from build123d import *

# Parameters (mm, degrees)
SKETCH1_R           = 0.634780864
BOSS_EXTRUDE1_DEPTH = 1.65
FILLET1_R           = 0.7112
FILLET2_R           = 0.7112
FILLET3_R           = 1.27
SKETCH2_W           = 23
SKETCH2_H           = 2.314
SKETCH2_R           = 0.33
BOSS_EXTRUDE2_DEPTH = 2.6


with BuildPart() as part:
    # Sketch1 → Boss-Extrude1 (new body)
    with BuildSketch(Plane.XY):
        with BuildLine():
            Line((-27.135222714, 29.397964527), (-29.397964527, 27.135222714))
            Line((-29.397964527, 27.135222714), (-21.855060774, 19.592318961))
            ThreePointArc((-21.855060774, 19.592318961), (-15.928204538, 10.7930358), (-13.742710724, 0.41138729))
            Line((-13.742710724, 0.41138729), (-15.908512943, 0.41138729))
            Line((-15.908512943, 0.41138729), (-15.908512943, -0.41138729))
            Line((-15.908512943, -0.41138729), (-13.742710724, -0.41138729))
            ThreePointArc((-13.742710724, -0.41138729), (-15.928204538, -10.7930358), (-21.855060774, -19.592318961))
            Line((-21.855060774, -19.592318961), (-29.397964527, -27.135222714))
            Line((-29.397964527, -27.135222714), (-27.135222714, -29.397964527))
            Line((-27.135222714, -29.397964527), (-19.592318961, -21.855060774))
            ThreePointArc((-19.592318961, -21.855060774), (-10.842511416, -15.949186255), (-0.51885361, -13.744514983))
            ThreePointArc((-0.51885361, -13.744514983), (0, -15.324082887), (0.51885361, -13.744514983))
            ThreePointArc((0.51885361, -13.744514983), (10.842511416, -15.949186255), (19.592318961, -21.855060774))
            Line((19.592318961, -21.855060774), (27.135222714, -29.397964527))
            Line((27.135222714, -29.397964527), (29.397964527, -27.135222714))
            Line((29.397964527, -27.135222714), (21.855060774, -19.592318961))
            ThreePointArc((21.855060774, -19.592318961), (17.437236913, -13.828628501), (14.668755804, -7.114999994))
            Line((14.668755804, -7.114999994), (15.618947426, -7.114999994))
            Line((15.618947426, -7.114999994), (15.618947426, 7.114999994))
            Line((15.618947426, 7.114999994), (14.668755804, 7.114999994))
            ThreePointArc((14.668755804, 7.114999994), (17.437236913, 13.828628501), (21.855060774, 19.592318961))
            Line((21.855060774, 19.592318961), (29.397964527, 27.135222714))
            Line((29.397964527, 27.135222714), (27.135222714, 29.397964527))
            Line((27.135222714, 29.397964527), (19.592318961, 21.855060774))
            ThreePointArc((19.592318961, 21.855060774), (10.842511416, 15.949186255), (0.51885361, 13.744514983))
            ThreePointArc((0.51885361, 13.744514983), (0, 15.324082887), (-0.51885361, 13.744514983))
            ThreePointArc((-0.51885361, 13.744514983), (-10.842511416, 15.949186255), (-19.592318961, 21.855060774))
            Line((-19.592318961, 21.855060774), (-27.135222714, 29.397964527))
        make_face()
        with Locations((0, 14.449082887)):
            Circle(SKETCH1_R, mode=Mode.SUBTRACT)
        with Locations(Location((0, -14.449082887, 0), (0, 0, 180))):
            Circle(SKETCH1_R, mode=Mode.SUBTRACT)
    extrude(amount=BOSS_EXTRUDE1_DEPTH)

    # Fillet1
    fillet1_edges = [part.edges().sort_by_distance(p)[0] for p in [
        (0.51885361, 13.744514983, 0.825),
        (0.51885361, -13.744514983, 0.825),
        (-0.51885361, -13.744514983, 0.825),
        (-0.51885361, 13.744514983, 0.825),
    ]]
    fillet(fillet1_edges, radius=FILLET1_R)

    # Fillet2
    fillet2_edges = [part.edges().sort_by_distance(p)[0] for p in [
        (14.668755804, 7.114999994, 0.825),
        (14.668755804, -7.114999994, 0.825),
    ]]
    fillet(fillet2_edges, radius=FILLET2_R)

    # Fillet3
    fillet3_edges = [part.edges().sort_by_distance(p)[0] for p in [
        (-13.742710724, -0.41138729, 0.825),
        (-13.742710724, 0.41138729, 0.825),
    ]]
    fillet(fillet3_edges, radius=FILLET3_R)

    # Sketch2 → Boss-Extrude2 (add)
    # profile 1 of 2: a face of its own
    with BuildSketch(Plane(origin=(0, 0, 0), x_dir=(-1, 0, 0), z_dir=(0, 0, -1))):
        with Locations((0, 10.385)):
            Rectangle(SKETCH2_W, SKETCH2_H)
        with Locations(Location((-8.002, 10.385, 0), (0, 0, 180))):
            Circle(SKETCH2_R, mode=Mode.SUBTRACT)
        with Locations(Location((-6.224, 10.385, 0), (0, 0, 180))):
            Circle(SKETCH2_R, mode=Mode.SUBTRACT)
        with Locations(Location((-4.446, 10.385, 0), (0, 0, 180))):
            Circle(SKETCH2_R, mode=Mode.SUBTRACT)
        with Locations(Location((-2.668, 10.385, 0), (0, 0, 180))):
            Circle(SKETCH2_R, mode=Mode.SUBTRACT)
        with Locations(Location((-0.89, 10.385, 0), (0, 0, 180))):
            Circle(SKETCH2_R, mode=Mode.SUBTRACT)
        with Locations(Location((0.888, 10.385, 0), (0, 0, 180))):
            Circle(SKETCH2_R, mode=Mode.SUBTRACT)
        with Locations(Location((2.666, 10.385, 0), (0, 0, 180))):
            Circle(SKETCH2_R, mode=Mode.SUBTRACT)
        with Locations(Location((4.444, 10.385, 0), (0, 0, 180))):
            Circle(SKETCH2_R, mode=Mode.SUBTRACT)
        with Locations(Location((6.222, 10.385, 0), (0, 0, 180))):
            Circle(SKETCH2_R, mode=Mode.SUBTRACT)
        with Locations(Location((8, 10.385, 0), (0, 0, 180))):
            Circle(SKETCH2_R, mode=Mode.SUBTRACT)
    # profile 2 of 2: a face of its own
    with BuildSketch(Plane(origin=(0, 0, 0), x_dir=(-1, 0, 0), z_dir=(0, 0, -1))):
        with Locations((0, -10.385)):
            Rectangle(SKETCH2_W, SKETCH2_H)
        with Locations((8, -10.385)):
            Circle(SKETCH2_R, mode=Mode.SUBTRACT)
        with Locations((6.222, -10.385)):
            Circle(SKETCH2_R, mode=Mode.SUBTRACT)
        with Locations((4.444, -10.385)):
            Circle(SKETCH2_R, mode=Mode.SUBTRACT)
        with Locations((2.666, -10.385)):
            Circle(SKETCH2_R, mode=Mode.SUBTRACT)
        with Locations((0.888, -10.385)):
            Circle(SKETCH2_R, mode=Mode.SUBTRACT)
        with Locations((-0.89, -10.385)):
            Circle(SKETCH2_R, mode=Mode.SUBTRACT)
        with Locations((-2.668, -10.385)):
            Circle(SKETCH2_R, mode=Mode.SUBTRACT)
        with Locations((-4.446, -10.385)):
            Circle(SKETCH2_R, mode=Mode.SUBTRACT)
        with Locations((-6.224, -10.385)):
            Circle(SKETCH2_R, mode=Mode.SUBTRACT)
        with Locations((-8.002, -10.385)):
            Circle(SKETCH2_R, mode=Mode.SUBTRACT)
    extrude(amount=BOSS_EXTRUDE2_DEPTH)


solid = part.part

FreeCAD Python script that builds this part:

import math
import FreeCAD as App
import Part
import Sketcher

V = App.Vector


def edges_at(feature, points):
    """Names of the edges that pass closest to the given points."""
    edges = feature.Shape.Edges
    near = lambda p: min(range(len(edges)), key=lambda i: edges[i].distToShape(Part.Vertex(*p))[0])
    return sorted({f"Edge{near(p) + 1}" for p in points})

doc = App.newDocument("Part")
params = doc.addObject("Spreadsheet::Sheet", "Params")
for row, (alias, value) in enumerate([
    ("sketch1_length", "3.2 mm"),
    ("sketch1_height", "14.23 mm"),
    ("pad1_length", "1.65 mm"),
    ("fillet_radius", "0.7112 mm"),
    ("fillet2_radius", "0.7112 mm"),
    ("fillet3_radius", "1.27 mm"),
    ("sketch2_diameter", "0.66 mm"),
    ("sketch2_width", "23 mm"),
    ("pad2_length", "2.6 mm"),
], start=1):
    params.set(f"A{row}", alias)
    params.set(f"B{row}", "=" + value)
    params.setAlias(f"B{row}", alias)

body = doc.addObject("PartDesign::Body", "Body")

sketch1 = body.newObject("Sketcher::SketchObject", "Sketch")
sketch1.AttachmentSupport = (doc.getObject("XY_Plane"), [""])
sketch1.MapMode = "FlatFace"
sketch1.addGeometry(Part.LineSegment(V(-27.1, 29.4, 0), V(-29.4, 27.1, 0)), False)
sketch1.addGeometry(Part.LineSegment(V(-29.4, 27.1, 0), V(-21.9, 19.6, 0)), False)
sketch1.addGeometry(Part.ArcOfCircle(Part.Circle(V(-41.4, 0, 0), V(0, 0, 1), 27.7), math.radians(1), math.radians(45)), False)
sketch1.addGeometry(Part.LineSegment(V(-13.7, 0.4, 0), V(-15.9, 0.4, 0)), False)
sketch1.addGeometry(Part.LineSegment(V(-15.9, 0.4, 0), V(-15.9, -0.4, 0)), False)
sketch1.addGeometry(Part.LineSegment(V(-15.9, -0.4, 0), V(-13.7, -0.4, 0)), False)
sketch1.addGeometry(Part.ArcOfCircle(Part.Circle(V(-41.4, 0, 0), V(0, 0, 1), 27.7), math.radians(-45), math.radians(-1)), False)
sketch1.addGeometry(Part.LineSegment(V(-21.9, -19.6, 0), V(-29.4, -27.1, 0)), False)
sketch1.addGeometry(Part.LineSegment(V(-29.4, -27.1, 0), V(-27.1, -29.4, 0)), False)
sketch1.addGeometry(Part.LineSegment(V(-27.1, -29.4, 0), V(-19.6, -21.9, 0)), False)
sketch1.addGeometry(Part.ArcOfCircle(Part.Circle(V(0, -41.4, 0), V(0, 0, 1), 27.7), math.radians(91), math.radians(135)), False)
sketch1.addGeometry(Part.ArcOfCircle(Part.Circle(V(0, -14.4, 0), V(0, 0, 1), 0.9), math.radians(126), math.radians(414)), False)
sketch1.addGeometry(Part.ArcOfCircle(Part.Circle(V(0, -41.4, 0), V(0, 0, 1), 27.7), math.radians(45), math.radians(89)), False)
sketch1.addGeometry(Part.LineSegment(V(19.6, -21.9, 0), V(27.1, -29.4, 0)), False)
sketch1.addGeometry(Part.LineSegment(V(27.1, -29.4, 0), V(29.4, -27.1, 0)), False)
sketch1.addGeometry(Part.LineSegment(V(29.4, -27.1, 0), V(21.9, -19.6, 0)), False)
sketch1.addGeometry(Part.ArcOfCircle(Part.Circle(V(41.4, 0, 0), V(0, 0, 1), 27.7), math.radians(-165), math.radians(-135)), False)
sketch1.addGeometry(Part.LineSegment(V(14.7, -7.1, 0), V(15.6, -7.1, 0)), False)
sketch1.addGeometry(Part.LineSegment(V(15.6, -7.1, 0), V(15.6, 7.1, 0)), False)
sketch1.addGeometry(Part.LineSegment(V(15.6, 7.1, 0), V(14.7, 7.1, 0)), False)
sketch1.addGeometry(Part.ArcOfCircle(Part.Circle(V(41.4, 0, 0), V(0, 0, 1), 27.7), math.radians(135), math.radians(165)), False)
sketch1.addGeometry(Part.LineSegment(V(21.9, 19.6, 0), V(29.4, 27.1, 0)), False)
sketch1.addGeometry(Part.LineSegment(V(29.4, 27.1, 0), V(27.1, 29.4, 0)), False)
sketch1.addGeometry(Part.LineSegment(V(27.1, 29.4, 0), V(19.6, 21.9, 0)), False)
sketch1.addGeometry(Part.ArcOfCircle(Part.Circle(V(0, 41.4, 0), V(0, 0, 1), 27.7), math.radians(-89), math.radians(-45)), False)
sketch1.addGeometry(Part.ArcOfCircle(Part.Circle(V(0, 14.4, 0), V(0, 0, 1), 0.9), math.radians(-54), math.radians(234)), False)
sketch1.addGeometry(Part.ArcOfCircle(Part.Circle(V(0, 41.4, 0), V(0, 0, 1), 27.7), math.radians(-135), math.radians(-91)), False)
sketch1.addGeometry(Part.LineSegment(V(-19.6, 21.9, 0), V(-27.1, 29.4, 0)), False)
sketch1.addGeometry(Part.Circle(V(0, -14.4, 0), V(0, 0, 1), 0.6), False)
sketch1.addGeometry(Part.Circle(V(0, 14.4, 0), V(0, 0, 1), 0.6), False)
sketch1.addConstraint(Sketcher.Constraint("Coincident", 0, 2, 1, 1))
sketch1.addConstraint(Sketcher.Constraint("Tangent", 1, 2, 2, 2))
sketch1.addConstraint(Sketcher.Constraint("Coincident", 2, 1, 3, 1))
sketch1.addConstraint(Sketcher.Constraint("Coincident", 3, 2, 4, 1))
sketch1.addConstraint(Sketcher.Constraint("Coincident", 4, 2, 5, 1))
sketch1.addConstraint(Sketcher.Constraint("Coincident", 5, 2, 6, 2))
sketch1.addConstraint(Sketcher.Constraint("Tangent", 6, 1, 7, 1))
sketch1.addConstraint(Sketcher.Constraint("Coincident", 7, 2, 8, 1))
sketch1.addConstraint(Sketcher.Constraint("Coincident", 8, 2, 9, 1))
sketch1.addConstraint(Sketcher.Constraint("Tangent", 9, 2, 10, 2))
sketch1.addConstraint(Sketcher.Constraint("Coincident", 10, 1, 11, 1))
sketch1.addConstraint(Sketcher.Constraint("Coincident", 11, 2, 12, 2))
sketch1.addConstraint(Sketcher.Constraint("Tangent", 12, 1, 13, 1))
sketch1.addConstraint(Sketcher.Constraint("Coincident", 13, 2, 14, 1))
sketch1.addConstraint(Sketcher.Constraint("Coincident", 14, 2, 15, 1))
sketch1.addConstraint(Sketcher.Constraint("Tangent", 15, 2, 16, 2))
sketch1.addConstraint(Sketcher.Constraint("Coincident", 16, 1, 17, 1))
sketch1.addConstraint(Sketcher.Constraint("Coincident", 17, 2, 18, 1))
sketch1.addConstraint(Sketcher.Constraint("Coincident", 18, 2, 19, 1))
sketch1.addConstraint(Sketcher.Constraint("Coincident", 19, 2, 20, 2))
sketch1.addConstraint(Sketcher.Constraint("Tangent", 20, 1, 21, 1))
sketch1.addConstraint(Sketcher.Constraint("Coincident", 21, 2, 22, 1))
sketch1.addConstraint(Sketcher.Constraint("Coincident", 22, 2, 23, 1))
sketch1.addConstraint(Sketcher.Constraint("Tangent", 23, 2, 24, 2))
sketch1.addConstraint(Sketcher.Constraint("Coincident", 24, 1, 25, 1))
sketch1.addConstraint(Sketcher.Constraint("Coincident", 25, 2, 26, 2))
sketch1.addConstraint(Sketcher.Constraint("Tangent", 26, 1, 27, 1))
sketch1.addConstraint(Sketcher.Constraint("Coincident", 27, 2, 0, 1))
sketch1.addConstraint(Sketcher.Constraint("Horizontal", 3))
sketch1.addConstraint(Sketcher.Constraint("Vertical", 4))
sketch1.addConstraint(Sketcher.Constraint("Horizontal", 5))
sketch1.addConstraint(Sketcher.Constraint("Horizontal", 17))
sketch1.addConstraint(Sketcher.Constraint("Vertical", 18))
sketch1.addConstraint(Sketcher.Constraint("Horizontal", 19))
sketch1.addConstraint(Sketcher.Constraint("Coincident", 6, 3, 2, 3))
sketch1.addConstraint(Sketcher.Constraint("Coincident", 12, 3, 10, 3))
sketch1.addConstraint(Sketcher.Constraint("Coincident", 20, 3, 16, 3))
sketch1.addConstraint(Sketcher.Constraint("Coincident", 26, 3, 24, 3))
sketch1.addConstraint(Sketcher.Constraint("Coincident", 28, 3, 11, 3))
sketch1.addConstraint(Sketcher.Constraint("Coincident", 29, 3, 25, 3))
sketch1.addConstraint(Sketcher.Constraint("Equal", 2, 6))
sketch1.addConstraint(Sketcher.Constraint("Equal", 6, 10))
sketch1.addConstraint(Sketcher.Constraint("Equal", 10, 12))
sketch1.addConstraint(Sketcher.Constraint("Equal", 12, 16))
sketch1.addConstraint(Sketcher.Constraint("Equal", 16, 20))
sketch1.addConstraint(Sketcher.Constraint("Equal", 20, 24))
sketch1.addConstraint(Sketcher.Constraint("Equal", 11, 25))
sketch1.addConstraint(Sketcher.Constraint("Equal", 24, 26))
sketch1.addConstraint(Sketcher.Constraint("Equal", 28, 29))
sketch1.addConstraint(Sketcher.Constraint("Symmetric", 2, 3, 16, 3, -1, 1))
sketch1.addConstraint(Sketcher.Constraint("Symmetric", 10, 3, 24, 3, -1, 1))
sketch1.addConstraint(Sketcher.Constraint("Symmetric", 11, 3, 25, 3, -1, 1))
sketch1.addConstraint(Sketcher.Constraint("Symmetric", 0, 2, 14, 2, -1, 1))
sketch1.addConstraint(Sketcher.Constraint("Symmetric", 7, 2, 21, 2, -1, 1))
sketch1.addConstraint(Sketcher.Constraint("Symmetric", 8, 2, 22, 2, -1, 1))
sketch1.addConstraint(Sketcher.Constraint("Symmetric", 13, 2, 27, 2, -1, 1))
sketch1.addConstraint(Sketcher.Constraint("Symmetric", 10, 1, 11, 2, -2))
sketch1.addConstraint(Sketcher.Constraint("Symmetric", 8, 2, 13, 2, -2))
sketch1.addConstraint(Sketcher.Constraint("Symmetric", 7, 2, 14, 2, -2))
sketch1.addConstraint(Sketcher.Constraint("Symmetric", 2, 1, 5, 2, -1))
sketch1.addConstraint(Sketcher.Constraint("Perpendicular", 0, 1))
sketch1.addConstraint(Sketcher.Constraint("Perpendicular", 1, 7))
sketch1.addConstraint(Sketcher.Constraint("Perpendicular", 8, 9))
sketch1.addConstraint(Sketcher.Constraint("Vertical", 16, 1, 19, 2))
sketch1.addConstraint(Sketcher.Constraint("Equal", 7, 9))
sketch1.addConstraint(Sketcher.Constraint("Radius", 11, 0.875))
sketch1.addConstraint(Sketcher.Constraint("Distance", 0, 3.2))
sketch1.addConstraint(Sketcher.Constraint("DistanceY", 18, 1, 18, 2, 14.23))
sketch1.addConstraint(Sketcher.Constraint("Diameter", 28, 1.269562))
sketch1.addConstraint(Sketcher.Constraint("Radius", 2, 27.707723))
sketch1.addConstraint(Sketcher.Constraint("DistanceX", 17, 1, 17, 2, 0.950192))
sketch1.addConstraint(Sketcher.Constraint("DistanceX", 25, 2, 18, 2, 16.137801))
sketch1.addConstraint(Sketcher.Constraint("DistanceX", 3, 2, 3, 1, 2.165802))
sketch1.addConstraint(Sketcher.Constraint("DistanceY", 4, 2, 4, 1, 0.822775))
sketch1.addConstraint(Sketcher.Constraint("DistanceY", 25, 3, 0, 2, 12.68614))
sketch1.setExpression("Constraints[66]", "Params.sketch1_length")
sketch1.setExpression("Constraints[67]", "Params.sketch1_height")
pad1 = body.newObject("PartDesign::Pad", "Pad")
pad1.Profile = sketch1
pad1.setExpression("Length", "Params.pad1_length")
doc.recompute()

fillet = body.newObject("PartDesign::Fillet", "Fillet")
fillet.Base = (pad1, edges_at(pad1, [
    (0.519, 13.745, 0.825),
    (0.519, -13.745, 0.825),
    (-0.519, -13.745, 0.825),
    (-0.519, 13.745, 0.825),
]))
fillet.setExpression("Radius", "Params.fillet_radius")
doc.recompute()

fillet2 = body.newObject("PartDesign::Fillet", "Fillet001")
fillet2.Base = (fillet, edges_at(fillet, [(14.669, 7.115, 0.825), (14.669, -7.115, 0.825)]))
fillet2.setExpression("Radius", "Params.fillet2_radius")
doc.recompute()

fillet3 = body.newObject("PartDesign::Fillet", "Fillet002")
fillet3.Base = (fillet2, edges_at(fillet2, [(-13.743, -0.411, 0.825), (-13.743, 0.411, 0.825)]))
fillet3.setExpression("Radius", "Params.fillet3_radius")

sketch2 = body.newObject("Sketcher::SketchObject", "Sketch001")
sketch2.AttachmentSupport = (doc.getObject("XY_Plane"), [""])
sketch2.MapMode = "FlatFace"
sketch2.addGeometry(Part.LineSegment(V(11.5, 11.54, 0), V(11.5, 9.23, 0)), False)
sketch2.addGeometry(Part.LineSegment(V(11.5, 9.23, 0), V(-11.5, 9.23, 0)), False)
sketch2.addGeometry(Part.LineSegment(V(-11.5, 9.23, 0), V(-11.5, 11.54, 0)), False)
sketch2.addGeometry(Part.LineSegment(V(-11.5, 11.54, 0), V(11.5, 11.54, 0)), False)
sketch2.addGeometry(Part.Circle(V(8, 10.38, 0), V(0, 0, 1), 0.33), False)
sketch2.addGeometry(Part.Circle(V(6.22, 10.38, 0), V(0, 0, 1), 0.33), False)
sketch2.addGeometry(Part.Circle(V(4.45, 10.38, 0), V(0, 0, 1), 0.33), False)
sketch2.addGeometry(Part.Circle(V(2.67, 10.38, 0), V(0, 0, 1), 0.33), False)
sketch2.addGeometry(Part.Circle(V(0.89, 10.38, 0), V(0, 0, 1), 0.33), False)
sketch2.addGeometry(Part.Circle(V(-0.89, 10.38, 0), V(0, 0, 1), 0.33), False)
sketch2.addGeometry(Part.Circle(V(-2.67, 10.38, 0), V(0, 0, 1), 0.33), False)
sketch2.addGeometry(Part.Circle(V(-4.44, 10.38, 0), V(0, 0, 1), 0.33), False)
sketch2.addGeometry(Part.Circle(V(-6.22, 10.38, 0), V(0, 0, 1), 0.33), False)
sketch2.addGeometry(Part.Circle(V(-8, 10.38, 0), V(0, 0, 1), 0.33), False)
sketch2.addGeometry(Part.LineSegment(V(11.5, -9.23, 0), V(11.5, -11.54, 0)), False)
sketch2.addGeometry(Part.LineSegment(V(11.5, -11.54, 0), V(-11.5, -11.54, 0)), False)
sketch2.addGeometry(Part.LineSegment(V(-11.5, -11.54, 0), V(-11.5, -9.23, 0)), False)
sketch2.addGeometry(Part.LineSegment(V(-11.5, -9.23, 0), V(11.5, -9.23, 0)), False)
sketch2.addGeometry(Part.Circle(V(8, -10.38, 0), V(0, 0, 1), 0.33), False)
sketch2.addGeometry(Part.Circle(V(6.22, -10.38, 0), V(0, 0, 1), 0.33), False)
sketch2.addGeometry(Part.Circle(V(4.45, -10.38, 0), V(0, 0, 1), 0.33), False)
sketch2.addGeometry(Part.Circle(V(2.67, -10.38, 0), V(0, 0, 1), 0.33), False)
sketch2.addGeometry(Part.Circle(V(0.89, -10.38, 0), V(0, 0, 1), 0.33), False)
sketch2.addGeometry(Part.Circle(V(-0.89, -10.38, 0), V(0, 0, 1), 0.33), False)
sketch2.addGeometry(Part.Circle(V(-2.67, -10.38, 0), V(0, 0, 1), 0.33), False)
sketch2.addGeometry(Part.Circle(V(-4.44, -10.38, 0), V(0, 0, 1), 0.33), False)
sketch2.addGeometry(Part.Circle(V(-6.22, -10.38, 0), V(0, 0, 1), 0.33), False)
sketch2.addGeometry(Part.Circle(V(-8, -10.38, 0), V(0, 0, 1), 0.33), False)
sketch2.addConstraint(Sketcher.Constraint("Coincident", 0, 2, 1, 1))
sketch2.addConstraint(Sketcher.Constraint("Coincident", 1, 2, 2, 1))
sketch2.addConstraint(Sketcher.Constraint("Coincident", 2, 2, 3, 1))
sketch2.addConstraint(Sketcher.Constraint("Coincident", 3, 2, 0, 1))
sketch2.addConstraint(Sketcher.Constraint("Coincident", 14, 2, 15, 1))
sketch2.addConstraint(Sketcher.Constraint("Coincident", 15, 2, 16, 1))
sketch2.addConstraint(Sketcher.Constraint("Coincident", 16, 2, 17, 1))
sketch2.addConstraint(Sketcher.Constraint("Coincident", 17, 2, 14, 1))
sketch2.addConstraint(Sketcher.Constraint("Vertical", 0))
sketch2.addConstraint(Sketcher.Constraint("Horizontal", 1))
sketch2.addConstraint(Sketcher.Constraint("Vertical", 2))
sketch2.addConstraint(Sketcher.Constraint("Horizontal", 3))
sketch2.addConstraint(Sketcher.Constraint("Vertical", 14))
sketch2.addConstraint(Sketcher.Constraint("Horizontal", 15))
sketch2.addConstraint(Sketcher.Constraint("Vertical", 16))
sketch2.addConstraint(Sketcher.Constraint("Horizontal", 17))
sketch2.addConstraint(Sketcher.Constraint("Equal", 4, 5))
sketch2.addConstraint(Sketcher.Constraint("Equal", 5, 6))
sketch2.addConstraint(Sketcher.Constraint("Equal", 6, 7))
sketch2.addConstraint(Sketcher.Constraint("Equal", 7, 8))
sketch2.addConstraint(Sketcher.Constraint("Equal", 8, 9))
sketch2.addConstraint(Sketcher.Constraint("Equal", 9, 10))
sketch2.addConstraint(Sketcher.Constraint("Equal", 10, 11))
sketch2.addConstraint(Sketcher.Constraint("Equal", 11, 12))
sketch2.addConstraint(Sketcher.Constraint("Equal", 12, 13))
sketch2.addConstraint(Sketcher.Constraint("Equal", 13, 18))
sketch2.addConstraint(Sketcher.Constraint("Equal", 18, 19))
sketch2.addConstraint(Sketcher.Constraint("Equal", 19, 20))
sketch2.addConstraint(Sketcher.Constraint("Equal", 20, 21))
sketch2.addConstraint(Sketcher.Constraint("Equal", 21, 22))
sketch2.addConstraint(Sketcher.Constraint("Equal", 22, 23))
sketch2.addConstraint(Sketcher.Constraint("Equal", 23, 24))
sketch2.addConstraint(Sketcher.Constraint("Equal", 24, 25))
sketch2.addConstraint(Sketcher.Constraint("Equal", 25, 26))
sketch2.addConstraint(Sketcher.Constraint("Equal", 26, 27))
sketch2.addConstraint(Sketcher.Constraint("Symmetric", 2, 2, 14, 2, -1, 1))
sketch2.addConstraint(Sketcher.Constraint("Symmetric", 0, 2, 16, 2, -1, 1))
sketch2.addConstraint(Sketcher.Constraint("Symmetric", 4, 3, 18, 3, -1))
sketch2.addConstraint(Sketcher.Constraint("Symmetric", 5, 3, 19, 3, -1))
sketch2.addConstraint(Sketcher.Constraint("Symmetric", 6, 3, 20, 3, -1))
sketch2.addConstraint(Sketcher.Constraint("Symmetric", 7, 3, 21, 3, -1))
sketch2.addConstraint(Sketcher.Constraint("Symmetric", 8, 3, 22, 3, -1))
sketch2.addConstraint(Sketcher.Constraint("Symmetric", 9, 3, 23, 3, -1))
sketch2.addConstraint(Sketcher.Constraint("Symmetric", 10, 3, 24, 3, -1))
sketch2.addConstraint(Sketcher.Constraint("Symmetric", 11, 3, 25, 3, -1))
sketch2.addConstraint(Sketcher.Constraint("Symmetric", 12, 3, 26, 3, -1))
sketch2.addConstraint(Sketcher.Constraint("Symmetric", 13, 3, 27, 3, -1))
sketch2.addConstraint(Sketcher.Constraint("Horizontal", 4, 3, 5, 3))
sketch2.addConstraint(Sketcher.Constraint("Horizontal", 5, 3, 6, 3))
sketch2.addConstraint(Sketcher.Constraint("Horizontal", 6, 3, 7, 3))
sketch2.addConstraint(Sketcher.Constraint("Horizontal", 7, 3, 8, 3))
sketch2.addConstraint(Sketcher.Constraint("Horizontal", 8, 3, 9, 3))
sketch2.addConstraint(Sketcher.Constraint("Horizontal", 9, 3, 10, 3))
sketch2.addConstraint(Sketcher.Constraint("Horizontal", 10, 3, 11, 3))
sketch2.addConstraint(Sketcher.Constraint("Horizontal", 11, 3, 12, 3))
sketch2.addConstraint(Sketcher.Constraint("Horizontal", 12, 3, 13, 3))
sketch2.addConstraint(Sketcher.Constraint("Vertical", 3, 2, 14, 2))
sketch2.addConstraint(Sketcher.Constraint("Diameter", 4, 0.66))
sketch2.addConstraint(Sketcher.Constraint("DistanceX", 1, 2, 1, 1, 23.0))
sketch2.addConstraint(Sketcher.Constraint("DistanceX", 13, 3, -1, 1, 8.0))
sketch2.addConstraint(Sketcher.Constraint("DistanceY", 0, 2, 0, 1, 2.314))
sketch2.addConstraint(Sketcher.Constraint("DistanceX", -1, 1, 8, 3, 0.89))
sketch2.addConstraint(Sketcher.Constraint("DistanceX", 9, 3, 4, 3, 8.89))
sketch2.addConstraint(Sketcher.Constraint("DistanceX", 10, 3, 5, 3, 8.89))
sketch2.addConstraint(Sketcher.Constraint("DistanceX", 11, 3, 6, 3, 8.89))
sketch2.addConstraint(Sketcher.Constraint("DistanceX", 12, 3, 7, 3, 8.89))
sketch2.addConstraint(Sketcher.Constraint("DistanceY", 18, 3, 4, 3, 20.77))
sketch2.addConstraint(Sketcher.Constraint("DistanceX", -1, 1, 4, 3, 8.002))
sketch2.addConstraint(Sketcher.Constraint("DistanceX", -1, 1, 5, 3, 6.224))
sketch2.addConstraint(Sketcher.Constraint("DistanceX", -1, 1, 6, 3, 4.446))
sketch2.addConstraint(Sketcher.Constraint("DistanceX", -1, 1, 7, 3, 2.668))
sketch2.addConstraint(Sketcher.Constraint("DistanceY", -1, 1, 0, 2, 9.228))
sketch2.setExpression("Constraints[57]", "Params.sketch2_diameter")
sketch2.setExpression("Constraints[58]", "Params.sketch2_width")
pad2 = body.newObject("PartDesign::Pad", "Pad001")
pad2.Profile = sketch2
pad2.setExpression("Length", "Params.pad2_length")
pad2.Reversed = True

doc.recompute()
